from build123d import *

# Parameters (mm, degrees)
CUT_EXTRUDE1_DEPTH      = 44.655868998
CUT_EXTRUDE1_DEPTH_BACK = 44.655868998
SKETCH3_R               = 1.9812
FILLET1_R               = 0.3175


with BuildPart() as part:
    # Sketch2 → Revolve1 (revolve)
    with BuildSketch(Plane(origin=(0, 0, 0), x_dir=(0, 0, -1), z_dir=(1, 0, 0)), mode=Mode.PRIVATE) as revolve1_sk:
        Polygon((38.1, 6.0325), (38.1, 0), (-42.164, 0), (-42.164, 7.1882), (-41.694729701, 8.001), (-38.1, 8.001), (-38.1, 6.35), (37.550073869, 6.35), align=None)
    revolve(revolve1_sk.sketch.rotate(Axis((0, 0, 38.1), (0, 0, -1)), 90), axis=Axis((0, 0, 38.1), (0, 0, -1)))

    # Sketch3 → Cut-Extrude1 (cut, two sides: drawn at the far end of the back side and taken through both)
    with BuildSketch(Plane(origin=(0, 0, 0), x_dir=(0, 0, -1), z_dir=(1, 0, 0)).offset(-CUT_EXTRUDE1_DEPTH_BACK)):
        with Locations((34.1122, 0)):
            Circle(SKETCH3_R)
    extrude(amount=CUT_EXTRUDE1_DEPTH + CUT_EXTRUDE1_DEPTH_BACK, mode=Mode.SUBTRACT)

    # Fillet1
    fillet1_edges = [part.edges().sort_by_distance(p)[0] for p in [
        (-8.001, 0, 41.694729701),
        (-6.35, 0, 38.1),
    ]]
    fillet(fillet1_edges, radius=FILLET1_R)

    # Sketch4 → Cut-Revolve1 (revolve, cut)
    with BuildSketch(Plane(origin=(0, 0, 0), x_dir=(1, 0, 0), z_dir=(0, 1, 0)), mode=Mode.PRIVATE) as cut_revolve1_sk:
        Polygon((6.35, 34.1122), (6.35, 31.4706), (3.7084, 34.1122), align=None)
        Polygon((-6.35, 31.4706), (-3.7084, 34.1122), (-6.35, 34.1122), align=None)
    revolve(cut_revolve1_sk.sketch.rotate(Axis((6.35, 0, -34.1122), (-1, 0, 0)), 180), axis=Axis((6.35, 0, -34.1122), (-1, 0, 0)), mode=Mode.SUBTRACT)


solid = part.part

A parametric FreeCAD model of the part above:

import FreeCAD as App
import Part
import Sketcher
from FreeCAD import Vector
Q = App.Units.Quantity


def edges_at(feature, points):
    """Names of the edges that pass closest to the given points."""
    edges = feature.Shape.Edges
    near = lambda p: min(range(len(edges)), key=lambda i: edges[i].distToShape(Part.Vertex(*p))[0])
    return sorted({f"Edge{near(p) + 1}" for p in points})

doc = App.newDocument("Part")
body = doc.addObject("PartDesign::Body", "Body")

sketch1 = body.newObject("Sketcher::SketchObject", "Sketch")
sketch1.AttachmentSupport = (doc.getObject("YZ_Plane"), [""])
sketch1.MapMode = "FlatFace"
sketch1.addGeometry([
    Part.LineSegment(Vector(0, -38.1, 0), Vector(6, -38.1, 0)),
    Part.LineSegment(Vector(6, -38.1, 0), Vector(6.3, -37.6, 0)),
    Part.LineSegment(Vector(6.3, -37.6, 0), Vector(6.3, 38.1, 0)),
    Part.LineSegment(Vector(6.3, 38.1, 0), Vector(8, 38.1, 0)),
    Part.LineSegment(Vector(8, 38.1, 0), Vector(8, 41.7, 0)),
    Part.LineSegment(Vector(8, 41.7, 0), Vector(7.2, 42.2, 0)),
    Part.LineSegment(Vector(7.2, 42.2, 0), Vector(0, 42.2, 0)),
    Part.LineSegment(Vector(0, 42.2, 0), Vector(0, -38.1, 0)),
], False)
sketch1.addConstraint([
    Sketcher.Constraint("Coincident", 0, 2, 1, 1),
    Sketcher.Constraint("Coincident", 1, 2, 2, 1),
    Sketcher.Constraint("Coincident", 2, 2, 3, 1),
    Sketcher.Constraint("Coincident", 3, 2, 4, 1),
    Sketcher.Constraint("Coincident", 4, 2, 5, 1),
    Sketcher.Constraint("Coincident", 5, 2, 6, 1),
    Sketcher.Constraint("Coincident", 6, 2, 7, 1),
    Sketcher.Constraint("Coincident", 7, 2, 0, 1),
    Sketcher.Constraint("Horizontal", 0),
    Sketcher.Constraint("Vertical", 2),
    Sketcher.Constraint("Horizontal", 3),
    Sketcher.Constraint("Vertical", 4),
    Sketcher.Constraint("Horizontal", 6),
    Sketcher.Constraint("Vertical", 7),
    Sketcher.Constraint("PointOnObject", 6, 2, -2),
    Sketcher.Constraint("Perpendicular", 1, 5),
    Sketcher.Constraint("Angle", 1, Q("60 deg")),
    Sketcher.Constraint("DistanceY", 0, 2, 2, 2, Q("3 in")),
    Sketcher.Constraint("DistanceY", 7, 2, 7, 1, Q("3.16 in")),
    Sketcher.Constraint("DistanceY", 0, 2, -1, 1, Q("1.5 in")),
    Sketcher.Constraint("DistanceX", 3, 1, 3, 2, Q("0.065 in")),
    Sketcher.Constraint("DistanceX", 6, 2, 6, 1, Q("0.283 in")),
    Sketcher.Constraint("DistanceX", -1, 1, 1, 2, Q("0.25 in")),
    Sketcher.Constraint("Distance", 1, Q("0.025 in")),
])
revolution = body.newObject("PartDesign::Revolution", "Revolution")
revolution.Profile = sketch1
revolution.ReferenceAxis = (sketch1, ["V_Axis"])
revolution.Angle = 360

sketch2 = body.newObject("Sketcher::SketchObject", "Sketch001")
sketch2.AttachmentSupport = (doc.getObject("YZ_Plane"), [""])
sketch2.MapMode = "FlatFace"
sketch2.addGeometry(Part.Circle(Vector(0, -34.1, 0), Vector(0, 0, 1), 2), False)
sketch2.addConstraint([
    Sketcher.Constraint("PointOnObject", 0, 3, -2),
    Sketcher.Constraint("Diameter", 0, Q("0.156 in")),
    Sketcher.Constraint("DistanceY", 0, 3, -1, 1, Q("1.343 in")),
])
pocket1 = body.newObject("PartDesign::Pocket", "Pocket")
pocket1.Profile = sketch2
pocket1.Type = "ThroughAll"
pocket1.Midplane = True
doc.recompute()

fillet = body.newObject("PartDesign::Fillet", "Fillet")
fillet.Base = (pocket1, edges_at(pocket1, [(-8.001, 0, 41.695), (-6.35, 0, 38.1)]))
fillet.Radius = Q("0.0125 in")

sketch3 = body.newObject("Sketcher::SketchObject", "Sketch002")
sketch3.AttachmentSupport = (doc.getObject("XZ_Plane"), [""])
sketch3.MapMode = "FlatFace"
sketch3.addGeometry([
    Part.LineSegment(Vector(6.3, -31.5, 0), Vector(6.3, -34.1, 0)),
    Part.LineSegment(Vector(6.3, -34.1, 0), Vector(3.7, -34.1, 0)),
    Part.LineSegment(Vector(3.7, -34.1, 0), Vector(6.3, -31.5, 0)),
    Part.LineSegment(Vector(-6.3, -31.5, 0), Vector(-3.7, -34.1, 0)),
    Part.LineSegment(Vector(-3.7, -34.1, 0), Vector(-6.3, -34.1, 0)),
    Part.LineSegment(Vector(-6.3, -34.1, 0), Vector(-6.3, -31.5, 0)),
], False)
sketch3.addGeometry(Part.LineSegment(Vector(6.3, -34.1, 0), Vector(-6.3, -34.1, 0)), True)
sketch3.addConstraint([
    Sketcher.Constraint("Coincident", 0, 2, 1, 1),
    Sketcher.Constraint("Coincident", 1, 2, 2, 1),
    Sketcher.Constraint("Coincident", 2, 2, 0, 1),
    Sketcher.Constraint("Coincident", 3, 2, 4, 1),
    Sketcher.Constraint("Coincident", 4, 2, 5, 1),
    Sketcher.Constraint("Coincident", 5, 2, 3, 1),
    Sketcher.Constraint("Vertical", 0),
    Sketcher.Constraint("Horizontal", 1),
    Sketcher.Constraint("Horizontal", 4),
    Sketcher.Constraint("Vertical", 5),
    Sketcher.Constraint("Horizontal", 6),
    Sketcher.Constraint("Coincident", 6, 1, 0, 2),
    Sketcher.Constraint("Coincident", 6, 2, 4, 2),
    Sketcher.Constraint("Symmetric", 2, 2, 5, 2, -2),
    Sketcher.Constraint("Perpendicular", 2, 3),
    Sketcher.Constraint("Equal", 1, 4),
    Sketcher.Constraint("DistanceX", 6, 2, 6, 1, Q("0.5 in")),
    Sketcher.Constraint("DistanceX", 1, 2, 1, 1, Q("0.104 in")),
    Sketcher.Constraint("DistanceY", 0, 2, -1, 1, Q("1.343 in")),
])
groove = body.newObject("PartDesign::Groove", "Groove")
groove.Profile = sketch3
groove.ReferenceAxis = (sketch3, ["Axis0"])
groove.Angle = 360

doc.recompute()
